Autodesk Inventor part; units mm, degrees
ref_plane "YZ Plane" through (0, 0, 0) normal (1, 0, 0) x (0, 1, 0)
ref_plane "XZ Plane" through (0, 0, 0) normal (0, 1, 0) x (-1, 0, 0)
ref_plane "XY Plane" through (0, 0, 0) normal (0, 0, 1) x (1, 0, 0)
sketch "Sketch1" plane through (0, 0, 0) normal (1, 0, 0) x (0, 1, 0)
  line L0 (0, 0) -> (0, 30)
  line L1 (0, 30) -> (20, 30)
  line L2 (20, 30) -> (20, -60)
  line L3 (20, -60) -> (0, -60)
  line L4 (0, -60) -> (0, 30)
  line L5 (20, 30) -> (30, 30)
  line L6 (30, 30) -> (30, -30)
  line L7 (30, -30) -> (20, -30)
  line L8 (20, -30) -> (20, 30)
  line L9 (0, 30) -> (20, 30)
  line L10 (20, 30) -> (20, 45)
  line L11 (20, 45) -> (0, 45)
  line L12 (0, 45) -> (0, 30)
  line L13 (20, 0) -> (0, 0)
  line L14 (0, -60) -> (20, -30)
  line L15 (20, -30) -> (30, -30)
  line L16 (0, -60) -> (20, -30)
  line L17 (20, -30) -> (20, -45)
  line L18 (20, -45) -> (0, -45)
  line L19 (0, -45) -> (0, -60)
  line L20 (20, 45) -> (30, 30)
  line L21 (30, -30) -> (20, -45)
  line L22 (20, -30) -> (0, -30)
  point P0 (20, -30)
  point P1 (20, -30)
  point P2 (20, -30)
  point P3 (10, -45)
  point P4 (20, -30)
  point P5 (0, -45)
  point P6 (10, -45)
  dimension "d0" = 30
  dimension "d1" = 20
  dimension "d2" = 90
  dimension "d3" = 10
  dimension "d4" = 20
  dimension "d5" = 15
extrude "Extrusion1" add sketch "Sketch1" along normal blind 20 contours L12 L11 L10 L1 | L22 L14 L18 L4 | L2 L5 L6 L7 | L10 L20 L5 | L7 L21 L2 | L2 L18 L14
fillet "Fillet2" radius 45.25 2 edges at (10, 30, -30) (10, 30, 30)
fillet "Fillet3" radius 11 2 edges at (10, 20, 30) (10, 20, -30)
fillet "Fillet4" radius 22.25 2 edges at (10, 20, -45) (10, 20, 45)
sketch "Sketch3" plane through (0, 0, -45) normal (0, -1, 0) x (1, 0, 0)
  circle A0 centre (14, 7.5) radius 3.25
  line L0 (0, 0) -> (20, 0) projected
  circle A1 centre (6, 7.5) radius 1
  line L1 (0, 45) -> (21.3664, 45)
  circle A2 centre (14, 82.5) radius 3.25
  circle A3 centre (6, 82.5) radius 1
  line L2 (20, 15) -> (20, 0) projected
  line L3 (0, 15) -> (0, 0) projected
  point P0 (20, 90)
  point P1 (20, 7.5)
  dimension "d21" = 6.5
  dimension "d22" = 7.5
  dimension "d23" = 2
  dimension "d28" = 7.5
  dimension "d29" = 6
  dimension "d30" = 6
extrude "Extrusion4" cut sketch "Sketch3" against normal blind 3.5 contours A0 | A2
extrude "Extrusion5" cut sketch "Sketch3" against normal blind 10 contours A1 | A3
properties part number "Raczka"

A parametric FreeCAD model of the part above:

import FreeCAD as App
import Part
import Sketcher


def edges_at(feature, points):
    """Names of the edges that pass closest to the given points."""
    edges = feature.Shape.Edges
    near = lambda p: min(range(len(edges)), key=lambda i: edges[i].distToShape(Part.Vertex(*p))[0])
    return sorted({f"Edge{near(p) + 1}" for p in points})

doc = App.newDocument("Part")
body = doc.addObject("PartDesign::Body", "Body")

# Sketch on YZ plane
sketch1 = body.newObject("Sketcher::SketchObject", "Sketch")
sketch1.AttachmentSupport = (doc.getObject("YZ_Plane"), [""])
sketch1.MapMode = "FlatFace"
sketch1.addGeometry([
    Part.LineSegment(App.Vector(0, 45, 0), App.Vector(0, 30, 0)),  # 0
    Part.LineSegment(App.Vector(0, 30, 0), App.Vector(20, 30, 0)),  # 1
    Part.LineSegment(App.Vector(20, 30, 0), App.Vector(20, -30, 0)),  # 2
    Part.LineSegment(App.Vector(20, -30, 0), App.Vector(0, -30, 0)),  # 3
    Part.LineSegment(App.Vector(0, -30, 0), App.Vector(0, -45, 0)),  # 4
    Part.LineSegment(App.Vector(0, -45, 0), App.Vector(20, -45, 0)),  # 5
    Part.LineSegment(App.Vector(20, -45, 0), App.Vector(30, -30, 0)),  # 6
    Part.LineSegment(App.Vector(30, -30, 0), App.Vector(30, 30, 0)),  # 7
    Part.LineSegment(App.Vector(30, 30, 0), App.Vector(20, 45, 0)),  # 8
    Part.LineSegment(App.Vector(20, 45, 0), App.Vector(0, 45, 0)),  # 9
], False)
sketch1.addConstraint([
    Sketcher.Constraint("Coincident", 0, 2, 1, 1),
    Sketcher.Constraint("Coincident", 1, 2, 2, 1),
    Sketcher.Constraint("Coincident", 2, 2, 3, 1),
    Sketcher.Constraint("Coincident", 3, 2, 4, 1),
    Sketcher.Constraint("Coincident", 4, 2, 5, 1),
    Sketcher.Constraint("Coincident", 5, 2, 6, 1),
    Sketcher.Constraint("Coincident", 6, 2, 7, 1),
    Sketcher.Constraint("Coincident", 7, 2, 8, 1),
    Sketcher.Constraint("Coincident", 8, 2, 9, 1),
    Sketcher.Constraint("Coincident", 9, 2, 0, 1),
    Sketcher.Constraint("Vertical", 0),
    Sketcher.Constraint("Horizontal", 1),
    Sketcher.Constraint("Vertical", 2),
    Sketcher.Constraint("Horizontal", 3),
    Sketcher.Constraint("Vertical", 4),
    Sketcher.Constraint("Horizontal", 5),
    Sketcher.Constraint("Vertical", 7),
    Sketcher.Constraint("Horizontal", 9),
    Sketcher.Constraint("Symmetric", 0, 2, 3, 2, -1, 1),
    Sketcher.Constraint("Symmetric", 5, 2, 8, 2, -1),
    Sketcher.Constraint("PointOnObject", 0, 2, -2),
    Sketcher.Constraint("Horizontal", 3, 2, 6, 2),
    Sketcher.Constraint("Horizontal", 1, 2, 7, 2),
    Sketcher.Constraint("Vertical", 2, 2, 5, 2),
    Sketcher.Constraint("DistanceX", 1, 1, 1, 2, 20.0),
    Sketcher.Constraint("DistanceY", 0, 2, 0, 1, 15.0),
    Sketcher.Constraint("DistanceY", -1, 1, 0, 2, 30.0),
    Sketcher.Constraint("DistanceX", -1, 1, 6, 2, 30.0),
])
pad1 = body.newObject("PartDesign::Pad", "Pad")
pad1.Profile = sketch1
pad1.Length = 20
doc.recompute()

fillet = body.newObject("PartDesign::Fillet", "Fillet")
fillet.Base = (pad1, edges_at(pad1, [(10, 30, -30), (10, 30, 30)]))
fillet.Radius = 45.25
doc.recompute()

fillet2 = body.newObject("PartDesign::Fillet", "Fillet001")
fillet2.Base = (fillet, edges_at(fillet, [(10, 20, 30), (10, 20, -30)]))
fillet2.Radius = 11
doc.recompute()

fillet3 = body.newObject("PartDesign::Fillet", "Fillet002")
fillet3.Base = (fillet2, edges_at(fillet2, [(10, 20, -45), (10, 20, 45)]))
fillet3.Radius = 22.25

# Sketch on XZ plane
sketch2 = body.newObject("Sketcher::SketchObject", "Sketch001")
sketch2.AttachmentSupport = (doc.getObject("XZ_Plane"), [""])
sketch2.MapMode = "FlatFace"
sketch2.addGeometry([
    Part.Circle(App.Vector(14, -37.5, 0), App.Vector(0, 0, 1), 3.2),
    Part.Circle(App.Vector(14, 37.5, 0), App.Vector(0, 0, 1), 3.2),
], False)
sketch2.addConstraint([
    Sketcher.Constraint("Equal", 0, 1),
    Sketcher.Constraint("Symmetric", 0, 3, 1, 3, -1),
    Sketcher.Constraint("Diameter", 0, 6.5),
    Sketcher.Constraint("DistanceX", -1, 1, 0, 3, 14.0),
    Sketcher.Constraint("DistanceY", 0, 3, 1, 3, 75.0),
])
pocket1 = body.newObject("PartDesign::Pocket", "Pocket")
pocket1.Profile = sketch2
pocket1.Length = 3.5

# Sketch on XZ plane
sketch3 = body.newObject("Sketcher::SketchObject", "Sketch002")
sketch3.AttachmentSupport = (doc.getObject("XZ_Plane"), [""])
sketch3.MapMode = "FlatFace"
sketch3.addGeometry([
    Part.Circle(App.Vector(6, -37.5, 0), App.Vector(0, 0, 1), 1),
    Part.Circle(App.Vector(6, 37.5, 0), App.Vector(0, 0, 1), 1),
], False)
sketch3.addConstraint([
    Sketcher.Constraint("Equal", 0, 1),
    Sketcher.Constraint("Symmetric", 0, 3, 1, 3, -1),
    Sketcher.Constraint("Diameter", 0, 2.0),
    Sketcher.Constraint("DistanceX", -1, 1, 0, 3, 6.0),
    Sketcher.Constraint("DistanceY", 0, 3, 1, 3, 75.0),
])
pocket2 = body.newObject("PartDesign::Pocket", "Pocket001")
pocket2.Profile = sketch3
pocket2.Length = 10

doc.recompute()
